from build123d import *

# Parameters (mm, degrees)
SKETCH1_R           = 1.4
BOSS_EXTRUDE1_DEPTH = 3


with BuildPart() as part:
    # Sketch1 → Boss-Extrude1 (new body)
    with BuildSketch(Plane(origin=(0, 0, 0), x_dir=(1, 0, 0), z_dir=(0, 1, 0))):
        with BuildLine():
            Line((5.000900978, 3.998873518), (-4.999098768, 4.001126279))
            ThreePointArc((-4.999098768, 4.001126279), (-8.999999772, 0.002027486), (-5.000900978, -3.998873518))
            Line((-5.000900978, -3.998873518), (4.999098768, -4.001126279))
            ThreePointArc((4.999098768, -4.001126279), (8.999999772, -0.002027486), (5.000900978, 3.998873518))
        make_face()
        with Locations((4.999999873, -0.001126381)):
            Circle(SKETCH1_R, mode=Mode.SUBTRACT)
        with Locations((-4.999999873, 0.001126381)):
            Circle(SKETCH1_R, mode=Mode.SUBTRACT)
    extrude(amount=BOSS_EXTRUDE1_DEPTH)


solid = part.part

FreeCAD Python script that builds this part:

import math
import FreeCAD as App
import Part
import Sketcher

doc = App.newDocument("Part")
body = doc.addObject("PartDesign::Body", "Body")

sketch1 = body.newObject("Sketcher::SketchObject", "Sketch")
sketch1.AttachmentSupport = (doc.getObject("XZ_Plane"), [""])
sketch1.MapMode = "FlatFace"
sketch1.addGeometry([
    Part.LineSegment(App.Vector(5, -4, 0), App.Vector(-5, -4, 0)),
    Part.ArcOfCircle(Part.Circle(App.Vector(-5, 0, 0), App.Vector(0, 0, 1), 4), math.radians(90), math.radians(270)),
    Part.LineSegment(App.Vector(-5, 4, 0), App.Vector(5, 4, 0)),
    Part.ArcOfCircle(Part.Circle(App.Vector(5, 0, 0), App.Vector(0, 0, 1), 4), math.radians(-90), math.radians(90)),
    Part.Circle(App.Vector(5, 0, 0), App.Vector(0, 0, 1), 1.4),
    Part.Circle(App.Vector(-5, 0, 0), App.Vector(0, 0, 1), 1.4),
], False)
sketch1.addConstraint([
    Sketcher.Constraint("Tangent", 0, 2, 1, 2),
    Sketcher.Constraint("Tangent", 1, 1, 2, 1),
    Sketcher.Constraint("Tangent", 2, 2, 3, 2),
    Sketcher.Constraint("Tangent", 3, 1, 0, 1),
    Sketcher.Constraint("Coincident", 4, 3, 3, 3),
    Sketcher.Constraint("Coincident", 5, 3, 1, 3),
    Sketcher.Constraint("Equal", 1, 3),
    Sketcher.Constraint("Equal", 4, 5),
    Sketcher.Constraint("Symmetric", 1, 3, 3, 3, -1, 1),
    Sketcher.Constraint("Radius", 1, 4.0),
    Sketcher.Constraint("Diameter", 4, 2.8),
    Sketcher.Constraint("Distance", 0, 10.0),
    Sketcher.Constraint("DistanceX", 0, 2, -1, 1, 4.999099),
])
pad1 = body.newObject("PartDesign::Pad", "Pad")
pad1.Profile = sketch1
pad1.Length = 3
pad1.Reversed = True

doc.recompute()
